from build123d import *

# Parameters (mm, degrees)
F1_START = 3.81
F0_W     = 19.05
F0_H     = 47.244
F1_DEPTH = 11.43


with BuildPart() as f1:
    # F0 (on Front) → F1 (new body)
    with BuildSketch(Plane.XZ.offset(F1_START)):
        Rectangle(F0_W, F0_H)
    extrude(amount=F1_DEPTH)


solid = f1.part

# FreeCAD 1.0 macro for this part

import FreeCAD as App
import Part
import Sketcher
from FreeCAD import Vector
Q = App.Units.Quantity

doc = App.newDocument("Part")
params = doc.addObject("Spreadsheet::Sheet", "Params")
for row, (alias, value) in enumerate([
    ("sketch1_width", "0.75 in"),
    ("sketch1_height", "1.86 in"),
    ("pad1_length", "0.45 in"),
], start=1):
    params.set(f"A{row}", alias)
    params.set(f"B{row}", "=" + value)
    params.setAlias(f"B{row}", alias)

body = doc.addObject("PartDesign::Body", "Body")

sketch1 = body.newObject("Sketcher::SketchObject", "Sketch")
sketch1.AttachmentSupport = (doc.getObject("XZ_Plane"), [""])
sketch1.MapMode = "FlatFace"
sketch1.AttachmentOffset = App.Placement(Vector(0, 0, 0.15 * 25.4), App.Rotation())
sketch1.addGeometry([
    Part.LineSegment(Vector(-9.525, 23.622, 0), Vector(-9.525, -23.622, 0)),
    Part.LineSegment(Vector(-9.525, -23.622, 0), Vector(9.525, -23.622, 0)),
    Part.LineSegment(Vector(9.525, -23.622, 0), Vector(9.525, 23.622, 0)),
    Part.LineSegment(Vector(9.525, 23.622, 0), Vector(-9.525, 23.622, 0)),
], False)
sketch1.addConstraint([
    Sketcher.Constraint("Coincident", 0, 2, 1, 1),
    Sketcher.Constraint("Coincident", 1, 2, 2, 1),
    Sketcher.Constraint("Coincident", 2, 2, 3, 1),
    Sketcher.Constraint("Coincident", 3, 2, 0, 1),
    Sketcher.Constraint("Vertical", 0),
    Sketcher.Constraint("Horizontal", 1),
    Sketcher.Constraint("Vertical", 2),
    Sketcher.Constraint("Horizontal", 3),
    Sketcher.Constraint("Symmetric", 0, 2, 2, 2, -1, 1),
    Sketcher.Constraint("DistanceX", 1, 1, 1, 2, Q("0.75 in")),
    Sketcher.Constraint("DistanceY", 0, 2, 0, 1, Q("1.86 in")),
])
sketch1.setExpression("Constraints[9]", "Params.sketch1_width")
sketch1.setExpression("Constraints[10]", "Params.sketch1_height")
pad1 = body.newObject("PartDesign::Pad", "Pad")
pad1.Profile = sketch1
pad1.setExpression("Length", "Params.pad1_length")

doc.recompute()
